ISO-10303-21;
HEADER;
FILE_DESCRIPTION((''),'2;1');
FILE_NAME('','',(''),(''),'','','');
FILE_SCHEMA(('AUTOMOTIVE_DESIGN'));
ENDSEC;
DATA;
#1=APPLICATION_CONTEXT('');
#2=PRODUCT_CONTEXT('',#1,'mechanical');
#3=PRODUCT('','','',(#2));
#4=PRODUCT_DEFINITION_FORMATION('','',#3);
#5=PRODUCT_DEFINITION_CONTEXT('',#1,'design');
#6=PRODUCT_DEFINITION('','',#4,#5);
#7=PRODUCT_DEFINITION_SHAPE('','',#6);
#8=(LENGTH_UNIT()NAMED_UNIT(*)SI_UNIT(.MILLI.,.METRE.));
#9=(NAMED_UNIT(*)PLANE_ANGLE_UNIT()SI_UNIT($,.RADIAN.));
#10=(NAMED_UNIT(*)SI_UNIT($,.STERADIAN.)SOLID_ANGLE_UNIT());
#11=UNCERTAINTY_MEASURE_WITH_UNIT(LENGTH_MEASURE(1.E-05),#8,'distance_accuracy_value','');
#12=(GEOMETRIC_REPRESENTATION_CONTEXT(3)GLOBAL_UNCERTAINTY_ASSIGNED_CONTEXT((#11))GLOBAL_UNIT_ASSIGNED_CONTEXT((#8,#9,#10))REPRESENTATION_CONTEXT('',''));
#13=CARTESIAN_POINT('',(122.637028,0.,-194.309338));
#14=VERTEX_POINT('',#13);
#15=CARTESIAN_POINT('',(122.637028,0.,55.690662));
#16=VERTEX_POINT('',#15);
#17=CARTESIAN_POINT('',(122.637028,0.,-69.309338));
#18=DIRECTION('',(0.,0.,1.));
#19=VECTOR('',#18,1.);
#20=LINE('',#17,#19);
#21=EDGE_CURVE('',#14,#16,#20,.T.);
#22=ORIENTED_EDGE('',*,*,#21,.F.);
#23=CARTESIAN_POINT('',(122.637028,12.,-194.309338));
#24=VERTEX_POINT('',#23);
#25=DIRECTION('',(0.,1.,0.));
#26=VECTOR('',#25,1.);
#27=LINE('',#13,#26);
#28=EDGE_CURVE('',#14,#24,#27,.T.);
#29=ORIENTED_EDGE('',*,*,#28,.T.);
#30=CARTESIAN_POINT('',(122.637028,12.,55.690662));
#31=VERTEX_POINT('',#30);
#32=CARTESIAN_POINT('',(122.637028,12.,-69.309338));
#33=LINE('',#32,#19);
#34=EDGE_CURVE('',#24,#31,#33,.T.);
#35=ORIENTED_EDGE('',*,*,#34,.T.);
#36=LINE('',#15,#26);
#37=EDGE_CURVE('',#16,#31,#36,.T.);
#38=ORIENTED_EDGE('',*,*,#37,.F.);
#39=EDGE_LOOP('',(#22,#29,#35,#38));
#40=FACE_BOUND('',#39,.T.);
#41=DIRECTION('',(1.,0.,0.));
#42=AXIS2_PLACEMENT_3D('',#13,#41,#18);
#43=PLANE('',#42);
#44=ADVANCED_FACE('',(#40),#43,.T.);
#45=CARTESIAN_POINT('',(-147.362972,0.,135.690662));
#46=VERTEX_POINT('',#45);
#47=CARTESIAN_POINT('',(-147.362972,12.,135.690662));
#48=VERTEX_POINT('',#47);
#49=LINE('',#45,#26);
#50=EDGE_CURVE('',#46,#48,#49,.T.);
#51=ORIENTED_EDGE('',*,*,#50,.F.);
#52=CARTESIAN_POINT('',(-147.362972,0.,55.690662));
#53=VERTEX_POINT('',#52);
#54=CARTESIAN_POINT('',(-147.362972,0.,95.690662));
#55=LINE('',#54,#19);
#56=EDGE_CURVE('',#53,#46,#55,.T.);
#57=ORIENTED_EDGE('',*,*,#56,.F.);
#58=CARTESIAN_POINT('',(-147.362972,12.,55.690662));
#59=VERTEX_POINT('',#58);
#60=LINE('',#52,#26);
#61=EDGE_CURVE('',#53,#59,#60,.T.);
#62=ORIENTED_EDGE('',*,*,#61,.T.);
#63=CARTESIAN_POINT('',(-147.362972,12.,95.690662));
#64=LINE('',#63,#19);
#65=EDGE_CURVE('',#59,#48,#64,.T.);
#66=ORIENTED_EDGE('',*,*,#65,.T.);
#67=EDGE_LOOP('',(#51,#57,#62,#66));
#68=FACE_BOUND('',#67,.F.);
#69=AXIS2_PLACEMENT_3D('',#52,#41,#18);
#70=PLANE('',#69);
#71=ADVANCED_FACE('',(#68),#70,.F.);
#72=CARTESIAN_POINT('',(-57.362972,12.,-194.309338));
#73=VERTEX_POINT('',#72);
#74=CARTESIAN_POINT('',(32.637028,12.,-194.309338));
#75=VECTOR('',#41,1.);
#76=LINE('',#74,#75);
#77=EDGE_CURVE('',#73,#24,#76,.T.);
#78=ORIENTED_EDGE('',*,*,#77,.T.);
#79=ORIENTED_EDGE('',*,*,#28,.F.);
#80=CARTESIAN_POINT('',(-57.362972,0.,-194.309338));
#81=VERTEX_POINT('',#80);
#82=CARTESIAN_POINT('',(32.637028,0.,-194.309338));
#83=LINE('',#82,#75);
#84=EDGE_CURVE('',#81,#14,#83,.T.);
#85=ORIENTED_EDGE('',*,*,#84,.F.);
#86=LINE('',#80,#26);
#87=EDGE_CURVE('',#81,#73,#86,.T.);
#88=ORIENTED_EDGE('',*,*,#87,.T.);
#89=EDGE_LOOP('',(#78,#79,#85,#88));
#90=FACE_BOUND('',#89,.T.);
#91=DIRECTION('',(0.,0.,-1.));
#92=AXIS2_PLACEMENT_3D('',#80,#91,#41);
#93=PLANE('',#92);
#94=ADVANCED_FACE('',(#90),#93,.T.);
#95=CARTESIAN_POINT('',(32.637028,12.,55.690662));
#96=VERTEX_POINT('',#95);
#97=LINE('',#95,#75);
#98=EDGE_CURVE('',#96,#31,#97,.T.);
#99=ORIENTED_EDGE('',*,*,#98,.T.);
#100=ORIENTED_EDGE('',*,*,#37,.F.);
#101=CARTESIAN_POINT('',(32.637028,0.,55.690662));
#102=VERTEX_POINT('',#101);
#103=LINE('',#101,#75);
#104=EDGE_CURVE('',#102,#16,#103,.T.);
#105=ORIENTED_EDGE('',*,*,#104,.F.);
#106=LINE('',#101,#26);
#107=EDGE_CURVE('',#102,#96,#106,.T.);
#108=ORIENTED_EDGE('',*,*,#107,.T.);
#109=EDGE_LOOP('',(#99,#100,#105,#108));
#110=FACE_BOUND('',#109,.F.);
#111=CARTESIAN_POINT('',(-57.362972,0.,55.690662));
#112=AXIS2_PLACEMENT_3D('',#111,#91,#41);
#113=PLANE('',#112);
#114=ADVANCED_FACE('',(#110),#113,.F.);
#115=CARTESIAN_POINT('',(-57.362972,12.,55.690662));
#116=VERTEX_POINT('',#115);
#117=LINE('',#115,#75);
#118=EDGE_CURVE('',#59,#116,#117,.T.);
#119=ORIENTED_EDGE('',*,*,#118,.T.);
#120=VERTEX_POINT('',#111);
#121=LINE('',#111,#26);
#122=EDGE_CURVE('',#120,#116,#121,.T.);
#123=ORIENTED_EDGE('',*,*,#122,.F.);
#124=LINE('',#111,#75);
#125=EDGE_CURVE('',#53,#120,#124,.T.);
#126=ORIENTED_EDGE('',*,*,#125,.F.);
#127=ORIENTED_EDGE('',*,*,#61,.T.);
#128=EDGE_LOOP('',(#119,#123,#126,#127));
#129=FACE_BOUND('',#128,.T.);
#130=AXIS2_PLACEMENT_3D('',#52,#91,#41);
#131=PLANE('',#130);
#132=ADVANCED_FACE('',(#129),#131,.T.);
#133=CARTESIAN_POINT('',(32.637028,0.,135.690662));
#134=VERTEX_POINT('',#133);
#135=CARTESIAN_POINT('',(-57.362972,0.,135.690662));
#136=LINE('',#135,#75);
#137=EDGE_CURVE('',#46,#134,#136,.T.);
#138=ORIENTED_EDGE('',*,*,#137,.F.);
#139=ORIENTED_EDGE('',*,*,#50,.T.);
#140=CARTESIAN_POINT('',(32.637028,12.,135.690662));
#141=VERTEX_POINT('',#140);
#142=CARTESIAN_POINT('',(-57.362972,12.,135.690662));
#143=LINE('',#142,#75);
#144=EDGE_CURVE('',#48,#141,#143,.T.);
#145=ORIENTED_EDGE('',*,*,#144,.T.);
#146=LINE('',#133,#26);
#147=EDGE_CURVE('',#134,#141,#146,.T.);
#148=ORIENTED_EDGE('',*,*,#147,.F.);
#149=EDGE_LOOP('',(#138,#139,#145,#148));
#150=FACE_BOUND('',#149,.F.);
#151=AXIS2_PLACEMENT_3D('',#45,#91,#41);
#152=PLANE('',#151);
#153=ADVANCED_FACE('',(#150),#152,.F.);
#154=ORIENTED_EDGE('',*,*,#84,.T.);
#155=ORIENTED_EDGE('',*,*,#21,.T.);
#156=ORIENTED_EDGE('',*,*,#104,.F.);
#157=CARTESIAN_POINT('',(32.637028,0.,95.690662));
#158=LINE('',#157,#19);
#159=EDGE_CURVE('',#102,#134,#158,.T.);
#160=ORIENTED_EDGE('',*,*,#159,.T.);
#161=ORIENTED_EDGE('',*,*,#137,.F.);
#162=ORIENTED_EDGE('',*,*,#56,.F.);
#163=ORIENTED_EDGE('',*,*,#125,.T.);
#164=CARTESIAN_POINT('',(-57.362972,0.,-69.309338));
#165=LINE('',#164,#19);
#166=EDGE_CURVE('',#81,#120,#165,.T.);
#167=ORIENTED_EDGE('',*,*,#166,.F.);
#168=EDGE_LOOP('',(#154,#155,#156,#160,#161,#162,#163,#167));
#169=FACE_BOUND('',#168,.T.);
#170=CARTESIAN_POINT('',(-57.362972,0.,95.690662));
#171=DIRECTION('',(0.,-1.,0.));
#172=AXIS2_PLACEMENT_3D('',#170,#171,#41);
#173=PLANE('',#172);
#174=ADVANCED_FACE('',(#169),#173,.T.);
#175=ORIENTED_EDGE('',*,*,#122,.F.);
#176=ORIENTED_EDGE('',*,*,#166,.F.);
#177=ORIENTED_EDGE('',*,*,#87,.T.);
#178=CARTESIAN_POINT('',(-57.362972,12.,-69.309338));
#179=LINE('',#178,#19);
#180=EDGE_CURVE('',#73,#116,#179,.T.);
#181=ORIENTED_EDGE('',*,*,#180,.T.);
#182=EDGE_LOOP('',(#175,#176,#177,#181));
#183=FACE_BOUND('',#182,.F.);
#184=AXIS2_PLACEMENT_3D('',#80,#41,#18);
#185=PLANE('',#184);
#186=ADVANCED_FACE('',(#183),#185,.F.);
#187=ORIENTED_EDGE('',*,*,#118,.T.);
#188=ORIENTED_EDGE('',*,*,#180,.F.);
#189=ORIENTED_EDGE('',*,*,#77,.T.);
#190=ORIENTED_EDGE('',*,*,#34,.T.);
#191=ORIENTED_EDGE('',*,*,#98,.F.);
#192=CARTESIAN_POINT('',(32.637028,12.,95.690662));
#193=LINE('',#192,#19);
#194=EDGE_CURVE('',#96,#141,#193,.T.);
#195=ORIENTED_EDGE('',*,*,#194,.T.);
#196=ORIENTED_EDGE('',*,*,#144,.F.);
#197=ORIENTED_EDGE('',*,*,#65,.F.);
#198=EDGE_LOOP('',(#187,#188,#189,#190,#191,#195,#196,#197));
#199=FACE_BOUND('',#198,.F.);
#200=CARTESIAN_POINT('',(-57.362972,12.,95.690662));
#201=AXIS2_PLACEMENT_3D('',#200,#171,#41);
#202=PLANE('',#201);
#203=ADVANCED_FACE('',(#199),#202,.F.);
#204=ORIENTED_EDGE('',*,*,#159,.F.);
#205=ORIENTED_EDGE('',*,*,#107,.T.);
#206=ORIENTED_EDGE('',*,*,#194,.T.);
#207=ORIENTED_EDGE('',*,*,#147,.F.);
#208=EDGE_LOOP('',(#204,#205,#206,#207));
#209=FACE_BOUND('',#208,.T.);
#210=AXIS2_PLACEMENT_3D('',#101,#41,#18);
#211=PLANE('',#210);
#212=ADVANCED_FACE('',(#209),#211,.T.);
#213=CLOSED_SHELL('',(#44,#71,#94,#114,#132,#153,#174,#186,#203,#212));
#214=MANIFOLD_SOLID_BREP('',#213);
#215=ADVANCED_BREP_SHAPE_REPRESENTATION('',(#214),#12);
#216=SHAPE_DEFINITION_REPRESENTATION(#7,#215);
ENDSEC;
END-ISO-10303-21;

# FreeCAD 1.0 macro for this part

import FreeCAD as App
import Part
import Sketcher

V = App.Vector
Q = App.Units.Quantity

doc = App.newDocument("Part")
body = doc.addObject("PartDesign::Body", "Body")

# Sketch on XZ plane
sketch1 = body.newObject("Sketcher::SketchObject", "Sketch")
sketch1.AttachmentSupport = (doc.getObject("XZ_Plane"), [""])
sketch1.MapMode = "FlatFace"
sketch1.addGeometry(Part.LineSegment(V(-57, 56, 0), V(-57, -194, 0)), False)
sketch1.addGeometry(Part.LineSegment(V(-57, -194, 0), V(123, -194, 0)), False)
sketch1.addGeometry(Part.LineSegment(V(123, -194, 0), V(123, 56, 0)), False)
sketch1.addGeometry(Part.LineSegment(V(123, 56, 0), V(-57, 56, 0)), False)
sketch1.addConstraint(Sketcher.Constraint("Coincident", 0, 2, 1, 1))
sketch1.addConstraint(Sketcher.Constraint("Coincident", 1, 2, 2, 1))
sketch1.addConstraint(Sketcher.Constraint("Coincident", 2, 2, 3, 1))
sketch1.addConstraint(Sketcher.Constraint("Coincident", 3, 2, 0, 1))
sketch1.addConstraint(Sketcher.Constraint("Vertical", 0))
sketch1.addConstraint(Sketcher.Constraint("Horizontal", 1))
sketch1.addConstraint(Sketcher.Constraint("Vertical", 2))
sketch1.addConstraint(Sketcher.Constraint("Horizontal", 3))
sketch1.addConstraint(Sketcher.Constraint("DistanceX", 1, 1, 1, 2, Q("180 mm")))
sketch1.addConstraint(Sketcher.Constraint("DistanceY", 0, 2, 0, 1, Q("250 mm")))
sketch1.addConstraint(Sketcher.Constraint("DistanceY", 0, 2, -1, 1, Q("194.309338 mm")))
sketch1.addConstraint(Sketcher.Constraint("DistanceX", -1, 1, 1, 2, Q("122.637028 mm")))
pad1 = body.newObject("PartDesign::Pad", "Pad")
pad1.Profile = sketch1
pad1.Length = 12
pad1.Reversed = True

# Sketch on XZ plane
sketch2 = body.newObject("Sketcher::SketchObject", "Sketch001")
sketch2.AttachmentSupport = (doc.getObject("XZ_Plane"), [""])
sketch2.MapMode = "FlatFace"
sketch2.addGeometry(Part.LineSegment(V(-147, 136, 0), V(-147, 56, 0)), False)
sketch2.addGeometry(Part.LineSegment(V(-147, 56, 0), V(33, 56, 0)), False)
sketch2.addGeometry(Part.LineSegment(V(33, 56, 0), V(33, 136, 0)), False)
sketch2.addGeometry(Part.LineSegment(V(33, 136, 0), V(-147, 136, 0)), False)
sketch2.addConstraint(Sketcher.Constraint("Coincident", 0, 2, 1, 1))
sketch2.addConstraint(Sketcher.Constraint("Coincident", 1, 2, 2, 1))
sketch2.addConstraint(Sketcher.Constraint("Coincident", 2, 2, 3, 1))
sketch2.addConstraint(Sketcher.Constraint("Coincident", 3, 2, 0, 1))
sketch2.addConstraint(Sketcher.Constraint("Vertical", 0))
sketch2.addConstraint(Sketcher.Constraint("Horizontal", 1))
sketch2.addConstraint(Sketcher.Constraint("Vertical", 2))
sketch2.addConstraint(Sketcher.Constraint("Horizontal", 3))
sketch2.addConstraint(Sketcher.Constraint("DistanceX", 1, 1, 1, 2, Q("180 mm")))
sketch2.addConstraint(Sketcher.Constraint("DistanceY", 0, 2, 0, 1, Q("80 mm")))
sketch2.addConstraint(Sketcher.Constraint("DistanceY", -1, 1, 2, 2, Q("135.690662 mm")))
sketch2.addConstraint(Sketcher.Constraint("DistanceX", 0, 2, -1, 1, Q("147.362972 mm")))
pad2 = body.newObject("PartDesign::Pad", "Pad001")
pad2.Profile = sketch2
pad2.Length = 12
pad2.Reversed = True

doc.recompute()
